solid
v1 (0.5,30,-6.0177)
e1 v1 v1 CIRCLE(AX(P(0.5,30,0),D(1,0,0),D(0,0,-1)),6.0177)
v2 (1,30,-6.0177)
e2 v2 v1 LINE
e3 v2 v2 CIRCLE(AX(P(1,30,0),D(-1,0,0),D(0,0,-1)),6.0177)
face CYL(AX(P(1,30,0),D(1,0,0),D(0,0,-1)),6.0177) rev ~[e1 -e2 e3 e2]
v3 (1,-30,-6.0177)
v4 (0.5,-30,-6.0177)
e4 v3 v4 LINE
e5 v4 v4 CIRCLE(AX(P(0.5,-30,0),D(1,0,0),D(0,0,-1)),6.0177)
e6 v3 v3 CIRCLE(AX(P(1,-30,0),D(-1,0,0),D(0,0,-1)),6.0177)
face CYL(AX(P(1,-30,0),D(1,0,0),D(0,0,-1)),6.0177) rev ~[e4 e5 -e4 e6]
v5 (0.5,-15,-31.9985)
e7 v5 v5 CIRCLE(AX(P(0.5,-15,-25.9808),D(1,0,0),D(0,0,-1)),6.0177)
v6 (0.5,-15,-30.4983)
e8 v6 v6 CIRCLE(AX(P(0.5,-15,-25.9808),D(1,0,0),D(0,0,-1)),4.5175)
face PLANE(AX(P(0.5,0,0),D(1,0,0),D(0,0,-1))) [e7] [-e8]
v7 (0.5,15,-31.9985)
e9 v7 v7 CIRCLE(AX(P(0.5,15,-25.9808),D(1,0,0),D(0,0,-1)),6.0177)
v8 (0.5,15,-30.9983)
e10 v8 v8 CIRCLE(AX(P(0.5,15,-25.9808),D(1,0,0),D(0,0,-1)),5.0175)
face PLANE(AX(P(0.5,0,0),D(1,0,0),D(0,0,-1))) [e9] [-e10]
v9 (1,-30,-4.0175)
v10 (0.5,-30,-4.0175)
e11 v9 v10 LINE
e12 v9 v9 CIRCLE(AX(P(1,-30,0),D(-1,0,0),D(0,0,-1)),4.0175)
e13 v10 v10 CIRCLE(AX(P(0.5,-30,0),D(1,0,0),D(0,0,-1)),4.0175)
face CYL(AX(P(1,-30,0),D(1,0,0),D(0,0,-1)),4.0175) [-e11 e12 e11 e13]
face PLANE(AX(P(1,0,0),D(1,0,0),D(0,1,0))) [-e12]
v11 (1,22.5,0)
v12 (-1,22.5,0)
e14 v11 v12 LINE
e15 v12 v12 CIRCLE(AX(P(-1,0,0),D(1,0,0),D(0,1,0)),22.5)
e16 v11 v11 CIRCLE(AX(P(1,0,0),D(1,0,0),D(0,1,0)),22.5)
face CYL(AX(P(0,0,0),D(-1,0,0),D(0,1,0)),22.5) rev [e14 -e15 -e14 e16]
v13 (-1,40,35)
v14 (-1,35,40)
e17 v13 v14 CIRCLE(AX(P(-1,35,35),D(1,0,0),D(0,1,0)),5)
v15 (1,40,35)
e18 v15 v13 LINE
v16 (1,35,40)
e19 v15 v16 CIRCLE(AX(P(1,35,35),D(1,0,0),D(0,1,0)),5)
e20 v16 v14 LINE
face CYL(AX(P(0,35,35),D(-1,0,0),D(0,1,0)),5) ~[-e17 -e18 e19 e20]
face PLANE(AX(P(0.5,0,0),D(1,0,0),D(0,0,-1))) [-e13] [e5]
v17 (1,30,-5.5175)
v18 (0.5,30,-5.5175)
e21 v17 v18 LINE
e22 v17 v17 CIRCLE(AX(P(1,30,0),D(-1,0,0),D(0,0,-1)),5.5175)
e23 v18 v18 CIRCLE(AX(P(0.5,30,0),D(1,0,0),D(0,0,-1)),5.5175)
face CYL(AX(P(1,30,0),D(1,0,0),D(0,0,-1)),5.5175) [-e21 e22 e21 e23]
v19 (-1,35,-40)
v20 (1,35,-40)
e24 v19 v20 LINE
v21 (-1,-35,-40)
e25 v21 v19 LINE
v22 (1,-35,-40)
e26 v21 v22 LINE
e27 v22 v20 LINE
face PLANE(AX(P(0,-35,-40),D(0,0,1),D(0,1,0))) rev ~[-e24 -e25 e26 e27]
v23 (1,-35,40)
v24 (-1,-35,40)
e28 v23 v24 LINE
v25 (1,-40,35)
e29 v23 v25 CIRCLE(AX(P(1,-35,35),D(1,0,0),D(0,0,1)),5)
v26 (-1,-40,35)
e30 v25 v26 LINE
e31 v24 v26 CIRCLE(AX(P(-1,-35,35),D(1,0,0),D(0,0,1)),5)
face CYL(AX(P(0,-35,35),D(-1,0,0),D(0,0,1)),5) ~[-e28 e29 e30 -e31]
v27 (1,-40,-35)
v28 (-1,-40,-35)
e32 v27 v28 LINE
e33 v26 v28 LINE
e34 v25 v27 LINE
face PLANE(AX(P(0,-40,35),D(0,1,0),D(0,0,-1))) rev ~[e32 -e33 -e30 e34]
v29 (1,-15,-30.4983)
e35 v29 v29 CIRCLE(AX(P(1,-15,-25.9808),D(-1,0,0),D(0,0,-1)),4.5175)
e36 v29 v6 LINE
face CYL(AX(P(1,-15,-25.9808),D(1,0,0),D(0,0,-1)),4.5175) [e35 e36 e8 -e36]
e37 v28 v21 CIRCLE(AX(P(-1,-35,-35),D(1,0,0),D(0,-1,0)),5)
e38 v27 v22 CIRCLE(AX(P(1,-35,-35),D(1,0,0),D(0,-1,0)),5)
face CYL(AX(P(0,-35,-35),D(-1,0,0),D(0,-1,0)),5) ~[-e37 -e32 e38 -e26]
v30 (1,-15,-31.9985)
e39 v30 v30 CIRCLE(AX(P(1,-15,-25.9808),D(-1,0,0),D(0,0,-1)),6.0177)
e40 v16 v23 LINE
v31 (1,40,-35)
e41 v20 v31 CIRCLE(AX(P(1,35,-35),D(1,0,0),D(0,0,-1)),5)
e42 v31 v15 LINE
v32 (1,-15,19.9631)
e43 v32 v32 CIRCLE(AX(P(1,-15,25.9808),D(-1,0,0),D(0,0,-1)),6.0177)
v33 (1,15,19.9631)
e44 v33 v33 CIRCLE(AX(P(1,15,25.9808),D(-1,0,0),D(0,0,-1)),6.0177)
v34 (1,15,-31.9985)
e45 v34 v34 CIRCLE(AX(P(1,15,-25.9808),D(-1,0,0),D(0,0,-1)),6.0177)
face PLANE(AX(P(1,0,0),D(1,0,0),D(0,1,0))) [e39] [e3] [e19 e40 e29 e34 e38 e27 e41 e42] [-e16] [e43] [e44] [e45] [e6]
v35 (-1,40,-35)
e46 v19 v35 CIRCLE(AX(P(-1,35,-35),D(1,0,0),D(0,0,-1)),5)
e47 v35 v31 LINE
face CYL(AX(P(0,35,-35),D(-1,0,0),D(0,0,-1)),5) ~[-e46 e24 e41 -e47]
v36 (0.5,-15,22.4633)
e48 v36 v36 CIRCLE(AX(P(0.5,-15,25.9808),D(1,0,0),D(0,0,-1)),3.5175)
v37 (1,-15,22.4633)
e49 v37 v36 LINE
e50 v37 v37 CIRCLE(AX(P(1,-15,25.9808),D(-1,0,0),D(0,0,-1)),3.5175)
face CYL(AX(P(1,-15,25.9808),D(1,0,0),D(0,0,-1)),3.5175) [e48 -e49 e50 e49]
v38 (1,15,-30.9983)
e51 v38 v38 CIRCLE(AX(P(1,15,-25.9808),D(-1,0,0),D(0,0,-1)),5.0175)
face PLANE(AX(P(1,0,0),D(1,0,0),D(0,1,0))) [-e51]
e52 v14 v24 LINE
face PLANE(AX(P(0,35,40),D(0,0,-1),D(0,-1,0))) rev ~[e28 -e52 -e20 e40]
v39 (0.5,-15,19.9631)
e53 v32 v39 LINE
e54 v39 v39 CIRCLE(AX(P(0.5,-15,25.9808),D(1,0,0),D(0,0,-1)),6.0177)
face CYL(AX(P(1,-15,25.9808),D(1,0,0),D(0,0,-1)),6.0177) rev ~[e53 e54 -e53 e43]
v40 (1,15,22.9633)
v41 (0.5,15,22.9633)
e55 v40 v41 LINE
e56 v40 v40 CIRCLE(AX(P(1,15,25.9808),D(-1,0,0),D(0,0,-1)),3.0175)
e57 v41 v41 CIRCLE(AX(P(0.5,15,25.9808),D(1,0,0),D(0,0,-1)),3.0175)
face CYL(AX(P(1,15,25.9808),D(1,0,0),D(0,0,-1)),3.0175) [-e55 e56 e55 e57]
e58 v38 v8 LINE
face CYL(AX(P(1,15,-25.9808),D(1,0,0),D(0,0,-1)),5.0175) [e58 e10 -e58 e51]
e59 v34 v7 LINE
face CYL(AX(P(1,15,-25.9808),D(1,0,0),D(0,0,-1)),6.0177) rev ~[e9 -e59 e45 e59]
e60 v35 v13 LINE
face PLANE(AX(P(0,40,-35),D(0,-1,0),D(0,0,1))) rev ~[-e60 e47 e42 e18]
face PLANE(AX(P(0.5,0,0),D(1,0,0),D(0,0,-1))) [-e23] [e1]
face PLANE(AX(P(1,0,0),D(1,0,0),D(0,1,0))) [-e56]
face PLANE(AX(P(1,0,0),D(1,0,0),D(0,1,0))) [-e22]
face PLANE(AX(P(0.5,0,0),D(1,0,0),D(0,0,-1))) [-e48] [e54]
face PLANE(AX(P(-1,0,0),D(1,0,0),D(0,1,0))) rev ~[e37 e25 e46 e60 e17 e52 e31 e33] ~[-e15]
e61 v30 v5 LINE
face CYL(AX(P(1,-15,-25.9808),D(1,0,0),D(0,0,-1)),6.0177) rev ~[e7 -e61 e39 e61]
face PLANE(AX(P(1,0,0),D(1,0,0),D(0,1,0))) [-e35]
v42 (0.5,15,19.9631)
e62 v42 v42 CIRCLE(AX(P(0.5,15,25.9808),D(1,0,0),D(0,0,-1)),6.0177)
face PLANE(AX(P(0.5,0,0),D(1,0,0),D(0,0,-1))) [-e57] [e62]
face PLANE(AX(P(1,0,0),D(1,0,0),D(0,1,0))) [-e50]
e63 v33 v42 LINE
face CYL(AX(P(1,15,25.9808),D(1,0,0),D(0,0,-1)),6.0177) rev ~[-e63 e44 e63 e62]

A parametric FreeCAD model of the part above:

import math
import FreeCAD as App
import Part
import Sketcher

doc = App.newDocument("Part")
body = doc.addObject("PartDesign::Body", "Body")

sketch1 = body.newObject("Sketcher::SketchObject", "Sketch")
sketch1.AttachmentSupport = (doc.getObject("YZ_Plane"), [""])
sketch1.MapMode = "FlatFace"
sketch1.addGeometry(Part.ArcOfCircle(Part.Circle(App.Vector(-35, -35, 0), App.Vector(0, 0, 1), 5), math.radians(180), math.radians(270)), False)
sketch1.addGeometry(Part.LineSegment(App.Vector(-35, -40, 0), App.Vector(35, -40, 0)), False)
sketch1.addGeometry(Part.ArcOfCircle(Part.Circle(App.Vector(35, -35, 0), App.Vector(0, 0, 1), 5), math.radians(-90), math.radians(0)), False)
sketch1.addGeometry(Part.LineSegment(App.Vector(40, -35, 0), App.Vector(40, 35, 0)), False)
sketch1.addGeometry(Part.ArcOfCircle(Part.Circle(App.Vector(35, 35, 0), App.Vector(0, 0, 1), 5), math.radians(0), math.radians(90)), False)
sketch1.addGeometry(Part.LineSegment(App.Vector(35, 40, 0), App.Vector(-35, 40, 0)), False)
sketch1.addGeometry(Part.ArcOfCircle(Part.Circle(App.Vector(-35, 35, 0), App.Vector(0, 0, 1), 5), math.radians(90), math.radians(180)), False)
sketch1.addGeometry(Part.LineSegment(App.Vector(-40, 35, 0), App.Vector(-40, -35, 0)), False)
sketch1.addGeometry(Part.Circle(App.Vector(0, 0, 0), App.Vector(0, 0, 1), 22), False)
sketch1.addConstraint(Sketcher.Constraint("Tangent", 0, 2, 1, 1))
sketch1.addConstraint(Sketcher.Constraint("Tangent", 1, 2, 2, 1))
sketch1.addConstraint(Sketcher.Constraint("Tangent", 2, 2, 3, 1))
sketch1.addConstraint(Sketcher.Constraint("Tangent", 3, 2, 4, 1))
sketch1.addConstraint(Sketcher.Constraint("Tangent", 4, 2, 5, 1))
sketch1.addConstraint(Sketcher.Constraint("Tangent", 5, 2, 6, 1))
sketch1.addConstraint(Sketcher.Constraint("Tangent", 6, 2, 7, 1))
sketch1.addConstraint(Sketcher.Constraint("Tangent", 7, 2, 0, 1))
sketch1.addConstraint(Sketcher.Constraint("Horizontal", 1))
sketch1.addConstraint(Sketcher.Constraint("Vertical", 3))
sketch1.addConstraint(Sketcher.Constraint("Horizontal", 5))
sketch1.addConstraint(Sketcher.Constraint("Vertical", 7))
sketch1.addConstraint(Sketcher.Constraint("Coincident", 8, 3, -1, 1))
sketch1.addConstraint(Sketcher.Constraint("Equal", 0, 2))
sketch1.addConstraint(Sketcher.Constraint("Equal", 2, 4))
sketch1.addConstraint(Sketcher.Constraint("Equal", 4, 6))
sketch1.addConstraint(Sketcher.Constraint("Symmetric", 0, 3, 4, 3, -1, 1))
sketch1.addConstraint(Sketcher.Constraint("Equal", 5, 3))
sketch1.addConstraint(Sketcher.Constraint("Diameter", 8, 45.0))
sketch1.addConstraint(Sketcher.Constraint("Radius", 0, 5.0))
sketch1.addConstraint(Sketcher.Constraint("DistanceX", 1, 1, 1, 2, 70.0))
pad1 = body.newObject("PartDesign::Pad", "Pad")
pad1.Profile = sketch1
pad1.Length = 2
pad1.Midplane = True

sketch2 = body.newObject("Sketcher::SketchObject", "Sketch001")
sketch2.AttachmentSupport = (doc.getObject("YZ_Plane"), [""])
sketch2.MapMode = "FlatFace"
sketch2.AttachmentOffset = App.Placement(App.Vector(0, 0, 1), App.Rotation())
sketch2.addGeometry(Part.Circle(App.Vector(15, -26, 0), App.Vector(0, 0, 1), 6), False)
sketch2.addGeometry(Part.Circle(App.Vector(15, -26, 0), App.Vector(0, 0, 1), 5), False)
sketch2.addGeometry(Part.Circle(App.Vector(-15, -26, 0), App.Vector(0, 0, 1), 6), False)
sketch2.addGeometry(Part.Circle(App.Vector(-15, -26, 0), App.Vector(0, 0, 1), 4.5), False)
sketch2.addGeometry(Part.Circle(App.Vector(30, 0, 0), App.Vector(0, 0, 1), 6), False)
sketch2.addGeometry(Part.Circle(App.Vector(30, 0, 0), App.Vector(0, 0, 1), 5.5), False)
sketch2.addGeometry(Part.Circle(App.Vector(-30, 0, 0), App.Vector(0, 0, 1), 6), False)
sketch2.addGeometry(Part.Circle(App.Vector(-30, 0, 0), App.Vector(0, 0, 1), 4), False)
sketch2.addGeometry(Part.Circle(App.Vector(15, 26, 0), App.Vector(0, 0, 1), 6), False)
sketch2.addGeometry(Part.Circle(App.Vector(15, 26, 0), App.Vector(0, 0, 1), 3), False)
sketch2.addGeometry(Part.Circle(App.Vector(-15, 26, 0), App.Vector(0, 0, 1), 6), False)
sketch2.addGeometry(Part.Circle(App.Vector(-15, 26, 0), App.Vector(0, 0, 1), 3.5), False)
sketch2.addConstraint(Sketcher.Constraint("Coincident", 1, 3, 0, 3))
sketch2.addConstraint(Sketcher.Constraint("Coincident", 3, 3, 2, 3))
sketch2.addConstraint(Sketcher.Constraint("Coincident", 5, 3, 4, 3))
sketch2.addConstraint(Sketcher.Constraint("Coincident", 7, 3, 6, 3))
sketch2.addConstraint(Sketcher.Constraint("Coincident", 9, 3, 8, 3))
sketch2.addConstraint(Sketcher.Constraint("Coincident", 11, 3, 10, 3))
sketch2.addConstraint(Sketcher.Constraint("Equal", 0, 2))
sketch2.addConstraint(Sketcher.Constraint("Equal", 2, 4))
sketch2.addConstraint(Sketcher.Constraint("Equal", 4, 6))
sketch2.addConstraint(Sketcher.Constraint("Equal", 6, 8))
sketch2.addConstraint(Sketcher.Constraint("Equal", 8, 10))
sketch2.addConstraint(Sketcher.Constraint("Symmetric", 4, 3, 6, 3, -1, 1))
sketch2.addConstraint(Sketcher.Constraint("Symmetric", 2, 3, 8, 3, -1, 1))
sketch2.addConstraint(Sketcher.Constraint("Symmetric", 0, 3, 10, 3, -1, 1))
sketch2.addConstraint(Sketcher.Constraint("Symmetric", 0, 3, 2, 3, -2))
sketch2.addConstraint(Sketcher.Constraint("PointOnObject", 4, 3, -1))
sketch2.addConstraint(Sketcher.Constraint("Diameter", 1, 10.035))
sketch2.addConstraint(Sketcher.Constraint("Diameter", 3, 9.035))
sketch2.addConstraint(Sketcher.Constraint("Diameter", 5, 11.035))
sketch2.addConstraint(Sketcher.Constraint("Diameter", 7, 8.035))
sketch2.addConstraint(Sketcher.Constraint("Diameter", 9, 6.035))
sketch2.addConstraint(Sketcher.Constraint("Diameter", 11, 7.035))
sketch2.addConstraint(Sketcher.Constraint("DistanceX", 6, 3, 4, 3, 60.0))
sketch2.addConstraint(Sketcher.Constraint("DistanceX", -1, 1, 0, 3, 15.0))
sketch2.addConstraint(Sketcher.Constraint("Diameter", 0, 12.0354))
sketch2.addConstraint(Sketcher.Constraint("DistanceY", 0, 3, -1, 1, 25.9808))
pocket1 = body.newObject("PartDesign::Pocket", "Pocket")
pocket1.Profile = sketch2
pocket1.Length = 0.5

doc.recompute()
